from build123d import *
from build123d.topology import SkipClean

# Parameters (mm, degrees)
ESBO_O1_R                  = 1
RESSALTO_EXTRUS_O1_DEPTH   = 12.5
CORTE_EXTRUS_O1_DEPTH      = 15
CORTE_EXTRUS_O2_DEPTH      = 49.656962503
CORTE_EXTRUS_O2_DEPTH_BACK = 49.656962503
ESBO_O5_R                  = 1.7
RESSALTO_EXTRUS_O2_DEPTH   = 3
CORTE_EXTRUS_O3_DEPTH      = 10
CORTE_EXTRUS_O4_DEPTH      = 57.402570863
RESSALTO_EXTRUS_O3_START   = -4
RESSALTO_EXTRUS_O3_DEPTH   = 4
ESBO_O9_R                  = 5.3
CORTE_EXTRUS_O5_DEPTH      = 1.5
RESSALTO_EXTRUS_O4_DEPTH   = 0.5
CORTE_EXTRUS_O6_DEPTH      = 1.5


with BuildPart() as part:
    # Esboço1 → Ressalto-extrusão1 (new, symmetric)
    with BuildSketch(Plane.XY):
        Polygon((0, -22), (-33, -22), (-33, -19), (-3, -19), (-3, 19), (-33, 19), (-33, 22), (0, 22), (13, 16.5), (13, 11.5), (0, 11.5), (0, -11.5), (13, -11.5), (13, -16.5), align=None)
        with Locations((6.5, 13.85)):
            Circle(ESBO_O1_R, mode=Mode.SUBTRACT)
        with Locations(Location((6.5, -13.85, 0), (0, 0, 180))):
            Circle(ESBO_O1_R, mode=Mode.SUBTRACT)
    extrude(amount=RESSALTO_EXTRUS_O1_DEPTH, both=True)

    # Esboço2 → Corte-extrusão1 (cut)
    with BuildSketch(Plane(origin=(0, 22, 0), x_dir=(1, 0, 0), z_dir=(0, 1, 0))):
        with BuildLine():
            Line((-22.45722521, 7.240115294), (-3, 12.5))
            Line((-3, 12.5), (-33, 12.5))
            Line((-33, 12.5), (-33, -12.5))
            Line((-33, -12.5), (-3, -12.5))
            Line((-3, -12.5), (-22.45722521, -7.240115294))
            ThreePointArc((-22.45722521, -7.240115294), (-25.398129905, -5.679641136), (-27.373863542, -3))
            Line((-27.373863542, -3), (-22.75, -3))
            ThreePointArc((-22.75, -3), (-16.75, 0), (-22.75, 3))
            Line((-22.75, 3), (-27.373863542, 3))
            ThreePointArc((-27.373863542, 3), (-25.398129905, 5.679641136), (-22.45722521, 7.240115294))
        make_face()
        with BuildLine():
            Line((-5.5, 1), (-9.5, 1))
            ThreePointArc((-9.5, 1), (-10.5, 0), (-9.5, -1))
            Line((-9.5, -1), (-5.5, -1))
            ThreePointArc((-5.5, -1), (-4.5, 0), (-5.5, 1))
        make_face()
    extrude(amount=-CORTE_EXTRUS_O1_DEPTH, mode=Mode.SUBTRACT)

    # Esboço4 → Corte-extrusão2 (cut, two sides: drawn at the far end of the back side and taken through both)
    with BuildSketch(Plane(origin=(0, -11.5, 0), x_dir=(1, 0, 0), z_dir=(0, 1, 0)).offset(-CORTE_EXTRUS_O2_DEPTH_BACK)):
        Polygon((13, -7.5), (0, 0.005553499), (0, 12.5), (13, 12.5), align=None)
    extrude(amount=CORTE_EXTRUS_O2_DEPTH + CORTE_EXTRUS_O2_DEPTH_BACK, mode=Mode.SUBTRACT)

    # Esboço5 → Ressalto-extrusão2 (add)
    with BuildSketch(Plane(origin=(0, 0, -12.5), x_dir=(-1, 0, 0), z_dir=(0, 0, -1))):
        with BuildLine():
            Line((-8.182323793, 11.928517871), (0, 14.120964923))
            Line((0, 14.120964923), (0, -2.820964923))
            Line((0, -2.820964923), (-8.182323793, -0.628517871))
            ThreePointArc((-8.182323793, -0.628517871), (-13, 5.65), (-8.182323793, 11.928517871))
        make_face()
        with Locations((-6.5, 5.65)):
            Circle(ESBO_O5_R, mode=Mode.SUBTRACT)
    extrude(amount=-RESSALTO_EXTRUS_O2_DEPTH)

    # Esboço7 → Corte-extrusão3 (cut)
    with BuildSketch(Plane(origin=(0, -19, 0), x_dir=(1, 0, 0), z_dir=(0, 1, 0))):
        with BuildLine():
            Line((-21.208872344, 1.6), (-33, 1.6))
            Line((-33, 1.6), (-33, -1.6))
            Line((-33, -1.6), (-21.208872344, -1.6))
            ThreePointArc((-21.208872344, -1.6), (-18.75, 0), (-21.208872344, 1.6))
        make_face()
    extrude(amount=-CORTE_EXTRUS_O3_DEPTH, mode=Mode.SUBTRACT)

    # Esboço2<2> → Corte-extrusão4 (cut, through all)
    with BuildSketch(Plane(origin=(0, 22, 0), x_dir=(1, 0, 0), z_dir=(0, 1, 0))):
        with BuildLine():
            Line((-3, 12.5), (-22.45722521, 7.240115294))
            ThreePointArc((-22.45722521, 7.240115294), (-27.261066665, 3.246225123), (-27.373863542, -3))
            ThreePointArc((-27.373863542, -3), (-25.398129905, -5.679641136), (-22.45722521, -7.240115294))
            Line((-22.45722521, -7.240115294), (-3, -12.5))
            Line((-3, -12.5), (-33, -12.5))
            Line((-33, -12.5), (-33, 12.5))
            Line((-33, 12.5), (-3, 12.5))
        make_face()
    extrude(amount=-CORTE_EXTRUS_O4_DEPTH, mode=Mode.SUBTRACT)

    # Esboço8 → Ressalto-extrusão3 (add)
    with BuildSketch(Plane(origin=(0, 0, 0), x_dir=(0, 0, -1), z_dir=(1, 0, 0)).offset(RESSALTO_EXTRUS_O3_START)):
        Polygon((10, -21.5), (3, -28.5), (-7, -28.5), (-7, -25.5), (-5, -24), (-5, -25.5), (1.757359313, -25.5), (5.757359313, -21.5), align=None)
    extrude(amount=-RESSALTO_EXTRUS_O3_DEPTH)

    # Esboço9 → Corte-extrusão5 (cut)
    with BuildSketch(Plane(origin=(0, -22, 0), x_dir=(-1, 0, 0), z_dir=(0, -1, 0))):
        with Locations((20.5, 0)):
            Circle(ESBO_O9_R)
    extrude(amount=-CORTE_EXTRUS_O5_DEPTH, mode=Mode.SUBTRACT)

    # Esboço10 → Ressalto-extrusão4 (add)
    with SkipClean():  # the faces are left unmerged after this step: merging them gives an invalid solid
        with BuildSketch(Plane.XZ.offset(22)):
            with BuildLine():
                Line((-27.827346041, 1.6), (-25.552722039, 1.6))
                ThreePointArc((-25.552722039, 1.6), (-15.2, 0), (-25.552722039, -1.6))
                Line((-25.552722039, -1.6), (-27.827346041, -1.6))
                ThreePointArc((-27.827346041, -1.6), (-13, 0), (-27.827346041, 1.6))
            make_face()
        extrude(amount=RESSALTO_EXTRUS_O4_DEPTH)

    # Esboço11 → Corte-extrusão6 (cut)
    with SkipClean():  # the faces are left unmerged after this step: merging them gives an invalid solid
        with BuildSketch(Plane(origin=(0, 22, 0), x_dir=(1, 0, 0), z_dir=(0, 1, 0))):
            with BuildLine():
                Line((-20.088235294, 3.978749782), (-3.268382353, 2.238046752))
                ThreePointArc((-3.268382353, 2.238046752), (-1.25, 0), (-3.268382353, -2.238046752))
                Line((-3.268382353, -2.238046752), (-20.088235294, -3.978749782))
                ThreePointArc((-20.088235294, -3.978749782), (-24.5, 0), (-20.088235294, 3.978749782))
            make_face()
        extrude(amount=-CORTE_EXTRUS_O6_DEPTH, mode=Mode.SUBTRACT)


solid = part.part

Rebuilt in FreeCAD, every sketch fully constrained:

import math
import FreeCAD as App
import Part
import Sketcher
Q = App.Units.Quantity

doc = App.newDocument("Part")
body = doc.addObject("PartDesign::Body", "Body")

# Sketch on XY plane
sketch1 = body.newObject("Sketcher::SketchObject", "Sketch")
sketch1.AttachmentSupport = (doc.getObject("XY_Plane"), [""])
sketch1.MapMode = "FlatFace"
sketch1.addGeometry([
    Part.LineSegment(App.Vector(-33, -22, 0), App.Vector(0, -22, 0)),  # 0
    Part.LineSegment(App.Vector(0, -22, 0), App.Vector(13, -16.5, 0)),  # 1
    Part.LineSegment(App.Vector(13, -16.5, 0), App.Vector(13, -11.5, 0)),  # 2
    Part.LineSegment(App.Vector(13, -11.5, 0), App.Vector(0, -11.5, 0)),  # 3
    Part.LineSegment(App.Vector(0, -11.5, 0), App.Vector(0, 11.5, 0)),  # 4
    Part.LineSegment(App.Vector(0, 11.5, 0), App.Vector(13, 11.5, 0)),  # 5
    Part.LineSegment(App.Vector(13, 11.5, 0), App.Vector(13, 16.5, 0)),  # 6
    Part.LineSegment(App.Vector(13, 16.5, 0), App.Vector(0, 22, 0)),  # 7
    Part.LineSegment(App.Vector(0, 22, 0), App.Vector(-33, 22, 0)),  # 8
    Part.LineSegment(App.Vector(-33, 22, 0), App.Vector(-33, 19, 0)),  # 9
    Part.LineSegment(App.Vector(-33, 19, 0), App.Vector(-3, 19, 0)),  # 10
    Part.LineSegment(App.Vector(-3, 19, 0), App.Vector(-3, -19, 0)),  # 11
    Part.LineSegment(App.Vector(-3, -19, 0), App.Vector(-33, -19, 0)),  # 12
    Part.LineSegment(App.Vector(-33, -19, 0), App.Vector(-33, -22, 0)),  # 13
    Part.Circle(App.Vector(6.5, -13.8, 0), App.Vector(0, 0, 1), 1),  # 14
    Part.Circle(App.Vector(6.5, 13.8, 0), App.Vector(0, 0, 1), 1),  # 15
], False)
sketch1.addConstraint([
    Sketcher.Constraint("Coincident", 0, 2, 1, 1),
    Sketcher.Constraint("Coincident", 1, 2, 2, 1),
    Sketcher.Constraint("Coincident", 2, 2, 3, 1),
    Sketcher.Constraint("Coincident", 3, 2, 4, 1),
    Sketcher.Constraint("Coincident", 4, 2, 5, 1),
    Sketcher.Constraint("Coincident", 5, 2, 6, 1),
    Sketcher.Constraint("Coincident", 6, 2, 7, 1),
    Sketcher.Constraint("Coincident", 7, 2, 8, 1),
    Sketcher.Constraint("Coincident", 8, 2, 9, 1),
    Sketcher.Constraint("Coincident", 9, 2, 10, 1),
    Sketcher.Constraint("Coincident", 10, 2, 11, 1),
    Sketcher.Constraint("Coincident", 11, 2, 12, 1),
    Sketcher.Constraint("Coincident", 12, 2, 13, 1),
    Sketcher.Constraint("Coincident", 13, 2, 0, 1),
    Sketcher.Constraint("Horizontal", 0),
    Sketcher.Constraint("Vertical", 2),
    Sketcher.Constraint("Horizontal", 3),
    Sketcher.Constraint("Vertical", 4),
    Sketcher.Constraint("Horizontal", 5),
    Sketcher.Constraint("Vertical", 6),
    Sketcher.Constraint("Horizontal", 8),
    Sketcher.Constraint("Vertical", 9),
    Sketcher.Constraint("Horizontal", 10),
    Sketcher.Constraint("Vertical", 11),
    Sketcher.Constraint("Horizontal", 12),
    Sketcher.Constraint("Vertical", 13),
    Sketcher.Constraint("Equal", 14, 15),
    Sketcher.Constraint("Symmetric", 3, 2, 4, 2, -1, 1),
    Sketcher.Constraint("Symmetric", 0, 2, 7, 2, -1, 1),
    Sketcher.Constraint("Symmetric", 14, 3, 15, 3, -1),
    Sketcher.Constraint("Symmetric", 1, 2, 6, 2, -1),
    Sketcher.Constraint("Symmetric", 9, 2, 12, 2, -1),
    Sketcher.Constraint("PointOnObject", 0, 2, -2),
    Sketcher.Constraint("Diameter", 14, 2.0),
    Sketcher.Constraint("DistanceX", 0, 1, 0, 2, 33.0),
    Sketcher.Constraint("DistanceX", 3, 2, 3, 1, 13.0),
    Sketcher.Constraint("DistanceX", 10, 1, 10, 2, 30.0),
    Sketcher.Constraint("DistanceY", 2, 1, 2, 2, 5.0),
    Sketcher.Constraint("DistanceY", 4, 1, 4, 2, 23.0),
    Sketcher.Constraint("DistanceY", 9, 2, 9, 1, 3.0),
    Sketcher.Constraint("DistanceY", 11, 2, 11, 1, 38.0),
    Sketcher.Constraint("DistanceX", -1, 1, 14, 3, 6.5),
    Sketcher.Constraint("DistanceY", 14, 3, 15, 3, 27.7),
])
pad1 = body.newObject("PartDesign::Pad", "Pad")
pad1.Profile = sketch1
pad1.Length = 25
pad1.Midplane = True

# Sketch on XZ plane
sketch2 = body.newObject("Sketcher::SketchObject", "Sketch001")
sketch2.AttachmentSupport = (doc.getObject("XZ_Plane"), [""])
sketch2.MapMode = "FlatFace"
sketch2.AttachmentOffset = App.Placement(App.Vector(0, 0, -22), App.Rotation())
sketch2.addGeometry([
    Part.LineSegment(App.Vector(-22.5, -7.2, 0), App.Vector(-3, -12.5, 0)),  # 0
    Part.LineSegment(App.Vector(-3, -12.5, 0), App.Vector(-33, -12.5, 0)),  # 1
    Part.LineSegment(App.Vector(-33, -12.5, 0), App.Vector(-33, 12.5, 0)),  # 2
    Part.LineSegment(App.Vector(-33, 12.5, 0), App.Vector(-3, 12.5, 0)),  # 3
    Part.LineSegment(App.Vector(-3, 12.5, 0), App.Vector(-22.5, 7.2, 0)),  # 4
    Part.ArcOfCircle(Part.Circle(App.Vector(-20.5, 0, 0), App.Vector(0, 0, 1), 7.5), math.radians(105), math.radians(156)),  # 5
    Part.LineSegment(App.Vector(-27.4, 3, 0), App.Vector(-22.8, 3, 0)),  # 6
    Part.ArcOfCircle(Part.Circle(App.Vector(-20.5, 0, 0), App.Vector(0, 0, 1), 3.8), math.radians(-127), math.radians(127)),  # 7
    Part.LineSegment(App.Vector(-22.8, -3, 0), App.Vector(-27.4, -3, 0)),  # 8
    Part.ArcOfCircle(Part.Circle(App.Vector(-20.5, 0, 0), App.Vector(0, 0, 1), 7.5), math.radians(-156), math.radians(-105)),  # 9
    Part.LineSegment(App.Vector(-5.5, -1, 0), App.Vector(-9.5, -1, 0)),  # 10
    Part.ArcOfCircle(Part.Circle(App.Vector(-9.5, 0, 0), App.Vector(0, 0, 1), 1), math.radians(90), math.radians(270)),  # 11
    Part.LineSegment(App.Vector(-9.5, 1, 0), App.Vector(-5.5, 1, 0)),  # 12
    Part.ArcOfCircle(Part.Circle(App.Vector(-5.5, 0, 0), App.Vector(0, 0, 1), 1), math.radians(-90), math.radians(90)),  # 13
], False)
sketch2.addConstraint([
    Sketcher.Constraint("Coincident", 0, 2, 1, 1),
    Sketcher.Constraint("Coincident", 1, 2, 2, 1),
    Sketcher.Constraint("Coincident", 2, 2, 3, 1),
    Sketcher.Constraint("Coincident", 3, 2, 4, 1),
    Sketcher.Constraint("Tangent", 4, 2, 5, 1),
    Sketcher.Constraint("Coincident", 5, 2, 6, 1),
    Sketcher.Constraint("Coincident", 6, 2, 7, 2),
    Sketcher.Constraint("Coincident", 7, 1, 8, 1),
    Sketcher.Constraint("Coincident", 8, 2, 9, 1),
    Sketcher.Constraint("Tangent", 9, 2, 0, 1),
    Sketcher.Constraint("Tangent", 10, 2, 11, 2),
    Sketcher.Constraint("Tangent", 11, 1, 12, 1),
    Sketcher.Constraint("Tangent", 12, 2, 13, 2),
    Sketcher.Constraint("Tangent", 13, 1, 10, 1),
    Sketcher.Constraint("Horizontal", 1),
    Sketcher.Constraint("Vertical", 2),
    Sketcher.Constraint("Horizontal", 3),
    Sketcher.Constraint("Horizontal", 6),
    Sketcher.Constraint("Horizontal", 8),
    Sketcher.Constraint("Horizontal", 10),
    Sketcher.Constraint("Horizontal", 12),
    Sketcher.Constraint("Coincident", 7, 3, 5, 3),
    Sketcher.Constraint("Coincident", 9, 3, 5, 3),
    Sketcher.Constraint("Equal", 5, 9),
    Sketcher.Constraint("Symmetric", 0, 2, 3, 2, -1),
    Sketcher.Constraint("Symmetric", 6, 2, 7, 1, -1),
    Sketcher.Constraint("PointOnObject", 11, 3, -1),
    Sketcher.Constraint("Radius", 11, 1.0),
    Sketcher.Constraint("Radius", 5, 7.5),
    Sketcher.Constraint("DistanceX", 1, 2, 1, 1, 30.0),
    Sketcher.Constraint("DistanceX", 10, 2, 10, 1, 4.0),
    Sketcher.Constraint("DistanceY", 2, 1, 2, 2, 25.0),
    Sketcher.Constraint("Radius", 7, 3.75),
    Sketcher.Constraint("DistanceX", 0, 2, -1, 1, 3.0),
    Sketcher.Constraint("DistanceY", -1, 1, 5, 2, 3.0),
    Sketcher.Constraint("DistanceX", 7, 3, 11, 3, 11.0),
    Sketcher.Constraint("DistanceX", 5, 3, -1, 1, 20.5),
])
pocket1 = body.newObject("PartDesign::Pocket", "Pocket")
pocket1.Profile = sketch2
pocket1.Length = 15
pocket1.Reversed = True

# Sketch on XZ plane
sketch3 = body.newObject("Sketcher::SketchObject", "Sketch002")
sketch3.AttachmentSupport = (doc.getObject("XZ_Plane"), [""])
sketch3.MapMode = "FlatFace"
sketch3.AttachmentOffset = App.Placement(App.Vector(0, 0, 11.5), App.Rotation())
sketch3.addGeometry([
    Part.LineSegment(App.Vector(0, 0, 0), App.Vector(13, 8, 0)),
    Part.LineSegment(App.Vector(13, 8, 0), App.Vector(13, -12, 0)),
    Part.LineSegment(App.Vector(13, -12, 0), App.Vector(0, -12, 0)),
    Part.LineSegment(App.Vector(0, -12, 0), App.Vector(0, 0, 0)),
], False)
sketch3.addConstraint([
    Sketcher.Constraint("Coincident", 0, 2, 1, 1),
    Sketcher.Constraint("Coincident", 1, 2, 2, 1),
    Sketcher.Constraint("Coincident", 2, 2, 3, 1),
    Sketcher.Constraint("Coincident", 3, 2, 0, 1),
    Sketcher.Constraint("Vertical", 1),
    Sketcher.Constraint("Horizontal", 2),
    Sketcher.Constraint("Vertical", 3),
    Sketcher.Constraint("PointOnObject", 2, 2, -2),
    Sketcher.Constraint("DistanceX", 2, 2, 2, 1, 13.0),
    Sketcher.Constraint("DistanceY", 1, 2, 1, 1, 20.0),
    Sketcher.Constraint("Angle", 0, Q("30 deg")),
    Sketcher.Constraint("DistanceY", -1, 1, 0, 2, 7.5),
])
pocket2 = body.newObject("PartDesign::Pocket", "Pocket001")
pocket2.Profile = sketch3
pocket2.Type = "ThroughAll"
pocket2.Midplane = True

# Sketch on XY plane
sketch4 = body.newObject("Sketcher::SketchObject", "Sketch003")
sketch4.AttachmentSupport = (doc.getObject("XY_Plane"), [""])
sketch4.MapMode = "FlatFace"
sketch4.AttachmentOffset = App.Placement(App.Vector(0, 0, -12.5), App.Rotation())
sketch4.addGeometry([
    Part.LineSegment(App.Vector(0, 14.1, 0), App.Vector(8.2, 11.9, 0)),  # 0
    Part.ArcOfCircle(Part.Circle(App.Vector(6.5, 5.7, 0), App.Vector(0, 0, 1), 6.5), math.radians(-75), math.radians(75)),  # 1
    Part.LineSegment(App.Vector(8.2, -0.6, 0), App.Vector(0, -2.8, 0)),  # 2
    Part.LineSegment(App.Vector(0, -2.8, 0), App.Vector(0, 14.1, 0)),  # 3
    Part.Circle(App.Vector(6.5, 5.7, 0), App.Vector(0, 0, 1), 1.7),  # 4
], False)
sketch4.addConstraint([
    Sketcher.Constraint("Tangent", 0, 2, 1, 2),
    Sketcher.Constraint("Tangent", 1, 1, 2, 1),
    Sketcher.Constraint("Coincident", 2, 2, 3, 1),
    Sketcher.Constraint("Coincident", 3, 2, 0, 1),
    Sketcher.Constraint("Vertical", 3),
    Sketcher.Constraint("Coincident", 4, 3, 1, 3),
    Sketcher.Constraint("PointOnObject", 2, 2, -2),
    Sketcher.Constraint("Vertical", 0, 2, 1, 1),
    Sketcher.Constraint("Diameter", 4, 3.4),
    Sketcher.Constraint("Radius", 1, 6.5),
    Sketcher.Constraint("Angle", 0, Q("-15 deg")),
    Sketcher.Constraint("DistanceX", -1, 1, 1, 3, 6.5),
    Sketcher.Constraint("DistanceY", -1, 1, 1, 3, 5.65),
])
pad2 = body.newObject("PartDesign::Pad", "Pad001")
pad2.Profile = sketch4
pad2.Length = 3

# Sketch on XZ plane
sketch5 = body.newObject("Sketcher::SketchObject", "Sketch004")
sketch5.AttachmentSupport = (doc.getObject("XZ_Plane"), [""])
sketch5.MapMode = "FlatFace"
sketch5.AttachmentOffset = App.Placement(App.Vector(0, 0, 19), App.Rotation())
sketch5.addGeometry([
    Part.LineSegment(App.Vector(-21.2, -1.6, 0), App.Vector(-33, -1.6, 0)),
    Part.LineSegment(App.Vector(-33, -1.6, 0), App.Vector(-33, 1.6, 0)),
    Part.LineSegment(App.Vector(-33, 1.6, 0), App.Vector(-21.2, 1.6, 0)),
    Part.ArcOfCircle(Part.Circle(App.Vector(-20.5, 0, 0), App.Vector(0, 0, 1), 1.8), math.radians(-114), math.radians(114)),
], False)
sketch5.addConstraint([
    Sketcher.Constraint("Coincident", 0, 2, 1, 1),
    Sketcher.Constraint("Coincident", 1, 2, 2, 1),
    Sketcher.Constraint("Coincident", 2, 2, 3, 2),
    Sketcher.Constraint("Coincident", 3, 1, 0, 1),
    Sketcher.Constraint("Horizontal", 0),
    Sketcher.Constraint("Vertical", 1),
    Sketcher.Constraint("Horizontal", 2),
    Sketcher.Constraint("Symmetric", 2, 2, 3, 1, -1),
    Sketcher.Constraint("Radius", 3, 1.75),
    Sketcher.Constraint("DistanceY", 1, 1, 1, 2, 3.2),
    Sketcher.Constraint("DistanceX", 0, 2, -1, 1, 33.0),
    Sketcher.Constraint("DistanceX", 3, 3, -1, 1, 20.5),
])
pocket3 = body.newObject("PartDesign::Pocket", "Pocket002")
pocket3.Profile = sketch5
pocket3.Length = 10
pocket3.Reversed = True

# Sketch on XZ plane
sketch6 = body.newObject("Sketcher::SketchObject", "Sketch005")
sketch6.AttachmentSupport = (doc.getObject("XZ_Plane"), [""])
sketch6.MapMode = "FlatFace"
sketch6.AttachmentOffset = App.Placement(App.Vector(0, 0, -22), App.Rotation())
sketch6.addGeometry([
    Part.LineSegment(App.Vector(-22, -7, 0), App.Vector(-3, -12, 0)),  # 0
    Part.LineSegment(App.Vector(-3, -12, 0), App.Vector(-33, -12, 0)),  # 1
    Part.LineSegment(App.Vector(-33, -12, 0), App.Vector(-33, 12, 0)),  # 2
    Part.LineSegment(App.Vector(-33, 12, 0), App.Vector(-3, 12, 0)),  # 3
    Part.LineSegment(App.Vector(-3, 12, 0), App.Vector(-22, 7, 0)),  # 4
    Part.ArcOfCircle(Part.Circle(App.Vector(-21, 0, 0), App.Vector(0, 0, 1), 7), math.radians(105), math.radians(156)),  # 5
    Part.ArcOfCircle(Part.Circle(App.Vector(-21, 0, 0), App.Vector(0, 0, 1), 7), math.radians(156), math.radians(255)),  # 6
], False)
sketch6.addConstraint([
    Sketcher.Constraint("Coincident", 0, 2, 1, 1),
    Sketcher.Constraint("Coincident", 1, 2, 2, 1),
    Sketcher.Constraint("Coincident", 2, 2, 3, 1),
    Sketcher.Constraint("Coincident", 3, 2, 4, 1),
    Sketcher.Constraint("Tangent", 4, 2, 5, 1),
    Sketcher.Constraint("Tangent", 5, 2, 6, 1),
    Sketcher.Constraint("Tangent", 6, 2, 0, 1),
    Sketcher.Constraint("Horizontal", 1),
    Sketcher.Constraint("Vertical", 2),
    Sketcher.Constraint("Horizontal", 3),
    Sketcher.Constraint("Equal", 5, 6),
    Sketcher.Constraint("Symmetric", 0, 2, 3, 2, -1),
    Sketcher.Constraint("PointOnObject", 5, 3, -1),
    Sketcher.Constraint("Radius", 5, 7.5),
    Sketcher.Constraint("DistanceX", 1, 2, 1, 1, 30.0),
    Sketcher.Constraint("DistanceY", 2, 1, 2, 2, 25.0),
    Sketcher.Constraint("DistanceX", 0, 2, -1, 1, 3.0),
    Sketcher.Constraint("DistanceY", -1, 1, 5, 2, 3.0),
    Sketcher.Constraint("DistanceX", 5, 3, -1, 1, 20.5),
])
pocket4 = body.newObject("PartDesign::Pocket", "Pocket003")
pocket4.Profile = sketch6
pocket4.Type = "ThroughAll"
pocket4.Reversed = True

# Sketch on YZ plane
sketch7 = body.newObject("Sketcher::SketchObject", "Sketch006")
sketch7.AttachmentSupport = (doc.getObject("YZ_Plane"), [""])
sketch7.MapMode = "FlatFace"
sketch7.AttachmentOffset = App.Placement(App.Vector(0, 0, -4), App.Rotation())
sketch7.addGeometry([
    Part.LineSegment(App.Vector(-28.5, -3, 0), App.Vector(-21.5, -10, 0)),  # 0
    Part.LineSegment(App.Vector(-21.5, -10, 0), App.Vector(-21.5, -5.8, 0)),  # 1
    Part.LineSegment(App.Vector(-21.5, -5.8, 0), App.Vector(-25.5, -1.8, 0)),  # 2
    Part.LineSegment(App.Vector(-25.5, -1.8, 0), App.Vector(-25.5, 5, 0)),  # 3
    Part.LineSegment(App.Vector(-25.5, 5, 0), App.Vector(-24, 5, 0)),  # 4
    Part.LineSegment(App.Vector(-24, 5, 0), App.Vector(-25.5, 7, 0)),  # 5
    Part.LineSegment(App.Vector(-25.5, 7, 0), App.Vector(-28.5, 7, 0)),  # 6
    Part.LineSegment(App.Vector(-28.5, 7, 0), App.Vector(-28.5, -3, 0)),  # 7
], False)
sketch7.addConstraint([
    Sketcher.Constraint("Coincident", 0, 2, 1, 1),
    Sketcher.Constraint("Coincident", 1, 2, 2, 1),
    Sketcher.Constraint("Coincident", 2, 2, 3, 1),
    Sketcher.Constraint("Coincident", 3, 2, 4, 1),
    Sketcher.Constraint("Coincident", 4, 2, 5, 1),
    Sketcher.Constraint("Coincident", 5, 2, 6, 1),
    Sketcher.Constraint("Coincident", 6, 2, 7, 1),
    Sketcher.Constraint("Coincident", 7, 2, 0, 1),
    Sketcher.Constraint("Vertical", 1),
    Sketcher.Constraint("Vertical", 3),
    Sketcher.Constraint("Horizontal", 4),
    Sketcher.Constraint("Horizontal", 6),
    Sketcher.Constraint("Vertical", 7),
    Sketcher.Constraint("Parallel", 0, 2),
    Sketcher.Constraint("Vertical", 3, 2, 5, 2),
    Sketcher.Constraint("DistanceX", 6, 2, 6, 1, 3.0),
    Sketcher.Constraint("DistanceY", 7, 2, 7, 1, 10.0),
    Sketcher.Constraint("Angle", 0, Q("-45 deg")),
    Sketcher.Constraint("DistanceX", 4, 1, 4, 2, 1.5),
    Sketcher.Constraint("DistanceY", 0, 2, -1, 1, 10.0),
    Sketcher.Constraint("DistanceY", -1, 1, 3, 2, 5.0),
    Sketcher.Constraint("DistanceX", 4, 2, -1, 1, 24.0),
    Sketcher.Constraint("DistanceY", -1, 1, 5, 2, 7.0),
    Sketcher.Constraint("DistanceY", 1, 1, 1, 2, 4.242641),
])
pad3 = body.newObject("PartDesign::Pad", "Pad002")
pad3.Profile = sketch7
pad3.Length = 4
pad3.Reversed = True

# Sketch on XZ plane
sketch8 = body.newObject("Sketcher::SketchObject", "Sketch007")
sketch8.AttachmentSupport = (doc.getObject("XZ_Plane"), [""])
sketch8.MapMode = "FlatFace"
sketch8.AttachmentOffset = App.Placement(App.Vector(0, 0, 22), App.Rotation())
sketch8.addGeometry(Part.Circle(App.Vector(-20, 0, 0), App.Vector(0, 0, 1), 5), False)
sketch8.addConstraint([
    Sketcher.Constraint("PointOnObject", 0, 3, -1),
    Sketcher.Constraint("Diameter", 0, 10.6),
    Sketcher.Constraint("DistanceX", 0, 3, -1, 1, 20.5),
])
pocket5 = body.newObject("PartDesign::Pocket", "Pocket004")
pocket5.Profile = sketch8
pocket5.Length = 1.5

# Sketch on XZ plane
sketch9 = body.newObject("Sketcher::SketchObject", "Sketch008")
sketch9.AttachmentSupport = (doc.getObject("XZ_Plane"), [""])
sketch9.MapMode = "FlatFace"
sketch9.AttachmentOffset = App.Placement(App.Vector(0, 0, 22), App.Rotation())
sketch9.addGeometry([
    Part.LineSegment(App.Vector(-27.8, 1.6, 0), App.Vector(-25.6, 1.6, 0)),
    Part.ArcOfCircle(Part.Circle(App.Vector(-20.5, 0, 0), App.Vector(0, 0, 1), 5.3), math.radians(-162), math.radians(162)),
    Part.LineSegment(App.Vector(-25.6, -1.6, 0), App.Vector(-27.8, -1.6, 0)),
    Part.ArcOfCircle(Part.Circle(App.Vector(-20.5, 0, 0), App.Vector(0, 0, 1), 7.5), math.radians(-168), math.radians(168)),
], False)
sketch9.addConstraint([
    Sketcher.Constraint("Coincident", 0, 2, 1, 2),
    Sketcher.Constraint("Coincident", 1, 1, 2, 1),
    Sketcher.Constraint("Coincident", 2, 2, 3, 1),
    Sketcher.Constraint("Coincident", 3, 2, 0, 1),
    Sketcher.Constraint("Horizontal", 0),
    Sketcher.Constraint("Horizontal", 2),
    Sketcher.Constraint("Coincident", 3, 3, 1, 3),
    Sketcher.Constraint("Symmetric", 0, 2, 1, 1, -1),
    Sketcher.Constraint("Radius", 1, 5.3),
    Sketcher.Constraint("Radius", 3, 7.5),
    Sketcher.Constraint("DistanceX", 1, 3, -1, 1, 20.5),
    Sketcher.Constraint("DistanceY", -1, 1, 0, 2, 1.6),
])
pad4 = body.newObject("PartDesign::Pad", "Pad003")
pad4.Profile = sketch9
pad4.Length = 0.5

# Sketch on XZ plane
sketch10 = body.newObject("Sketcher::SketchObject", "Sketch009")
sketch10.AttachmentSupport = (doc.getObject("XZ_Plane"), [""])
sketch10.MapMode = "FlatFace"
sketch10.AttachmentOffset = App.Placement(App.Vector(0, 0, -22), App.Rotation())
sketch10.addGeometry([
    Part.LineSegment(App.Vector(-3.3, -2.2, 0), App.Vector(-20.1, -4, 0)),
    Part.ArcOfCircle(Part.Circle(App.Vector(-20.5, 0, 0), App.Vector(0, 0, 1), 4), math.radians(84), math.radians(276)),
    Part.LineSegment(App.Vector(-20.1, 4, 0), App.Vector(-3.3, 2.2, 0)),
    Part.ArcOfCircle(Part.Circle(App.Vector(-3.5, 0, 0), App.Vector(0, 0, 1), 2.2), math.radians(-84), math.radians(84)),
], False)
sketch10.addConstraint([
    Sketcher.Constraint("Tangent", 0, 2, 1, 2),
    Sketcher.Constraint("Tangent", 1, 1, 2, 1),
    Sketcher.Constraint("Tangent", 2, 2, 3, 2),
    Sketcher.Constraint("Tangent", 3, 1, 0, 1),
    Sketcher.Constraint("Symmetric", 0, 2, 1, 1, -1),
    Sketcher.Constraint("Radius", 1, 4.0),
    Sketcher.Constraint("Radius", 3, 2.25),
    Sketcher.Constraint("DistanceX", 1, 3, 3, 3, 17.0),
    Sketcher.Constraint("DistanceX", 1, 3, -1, 1, 20.5),
])
pocket6 = body.newObject("PartDesign::Pocket", "Pocket005")
pocket6.Profile = sketch10
pocket6.Length = 1.5
pocket6.Reversed = True

doc.recompute()
